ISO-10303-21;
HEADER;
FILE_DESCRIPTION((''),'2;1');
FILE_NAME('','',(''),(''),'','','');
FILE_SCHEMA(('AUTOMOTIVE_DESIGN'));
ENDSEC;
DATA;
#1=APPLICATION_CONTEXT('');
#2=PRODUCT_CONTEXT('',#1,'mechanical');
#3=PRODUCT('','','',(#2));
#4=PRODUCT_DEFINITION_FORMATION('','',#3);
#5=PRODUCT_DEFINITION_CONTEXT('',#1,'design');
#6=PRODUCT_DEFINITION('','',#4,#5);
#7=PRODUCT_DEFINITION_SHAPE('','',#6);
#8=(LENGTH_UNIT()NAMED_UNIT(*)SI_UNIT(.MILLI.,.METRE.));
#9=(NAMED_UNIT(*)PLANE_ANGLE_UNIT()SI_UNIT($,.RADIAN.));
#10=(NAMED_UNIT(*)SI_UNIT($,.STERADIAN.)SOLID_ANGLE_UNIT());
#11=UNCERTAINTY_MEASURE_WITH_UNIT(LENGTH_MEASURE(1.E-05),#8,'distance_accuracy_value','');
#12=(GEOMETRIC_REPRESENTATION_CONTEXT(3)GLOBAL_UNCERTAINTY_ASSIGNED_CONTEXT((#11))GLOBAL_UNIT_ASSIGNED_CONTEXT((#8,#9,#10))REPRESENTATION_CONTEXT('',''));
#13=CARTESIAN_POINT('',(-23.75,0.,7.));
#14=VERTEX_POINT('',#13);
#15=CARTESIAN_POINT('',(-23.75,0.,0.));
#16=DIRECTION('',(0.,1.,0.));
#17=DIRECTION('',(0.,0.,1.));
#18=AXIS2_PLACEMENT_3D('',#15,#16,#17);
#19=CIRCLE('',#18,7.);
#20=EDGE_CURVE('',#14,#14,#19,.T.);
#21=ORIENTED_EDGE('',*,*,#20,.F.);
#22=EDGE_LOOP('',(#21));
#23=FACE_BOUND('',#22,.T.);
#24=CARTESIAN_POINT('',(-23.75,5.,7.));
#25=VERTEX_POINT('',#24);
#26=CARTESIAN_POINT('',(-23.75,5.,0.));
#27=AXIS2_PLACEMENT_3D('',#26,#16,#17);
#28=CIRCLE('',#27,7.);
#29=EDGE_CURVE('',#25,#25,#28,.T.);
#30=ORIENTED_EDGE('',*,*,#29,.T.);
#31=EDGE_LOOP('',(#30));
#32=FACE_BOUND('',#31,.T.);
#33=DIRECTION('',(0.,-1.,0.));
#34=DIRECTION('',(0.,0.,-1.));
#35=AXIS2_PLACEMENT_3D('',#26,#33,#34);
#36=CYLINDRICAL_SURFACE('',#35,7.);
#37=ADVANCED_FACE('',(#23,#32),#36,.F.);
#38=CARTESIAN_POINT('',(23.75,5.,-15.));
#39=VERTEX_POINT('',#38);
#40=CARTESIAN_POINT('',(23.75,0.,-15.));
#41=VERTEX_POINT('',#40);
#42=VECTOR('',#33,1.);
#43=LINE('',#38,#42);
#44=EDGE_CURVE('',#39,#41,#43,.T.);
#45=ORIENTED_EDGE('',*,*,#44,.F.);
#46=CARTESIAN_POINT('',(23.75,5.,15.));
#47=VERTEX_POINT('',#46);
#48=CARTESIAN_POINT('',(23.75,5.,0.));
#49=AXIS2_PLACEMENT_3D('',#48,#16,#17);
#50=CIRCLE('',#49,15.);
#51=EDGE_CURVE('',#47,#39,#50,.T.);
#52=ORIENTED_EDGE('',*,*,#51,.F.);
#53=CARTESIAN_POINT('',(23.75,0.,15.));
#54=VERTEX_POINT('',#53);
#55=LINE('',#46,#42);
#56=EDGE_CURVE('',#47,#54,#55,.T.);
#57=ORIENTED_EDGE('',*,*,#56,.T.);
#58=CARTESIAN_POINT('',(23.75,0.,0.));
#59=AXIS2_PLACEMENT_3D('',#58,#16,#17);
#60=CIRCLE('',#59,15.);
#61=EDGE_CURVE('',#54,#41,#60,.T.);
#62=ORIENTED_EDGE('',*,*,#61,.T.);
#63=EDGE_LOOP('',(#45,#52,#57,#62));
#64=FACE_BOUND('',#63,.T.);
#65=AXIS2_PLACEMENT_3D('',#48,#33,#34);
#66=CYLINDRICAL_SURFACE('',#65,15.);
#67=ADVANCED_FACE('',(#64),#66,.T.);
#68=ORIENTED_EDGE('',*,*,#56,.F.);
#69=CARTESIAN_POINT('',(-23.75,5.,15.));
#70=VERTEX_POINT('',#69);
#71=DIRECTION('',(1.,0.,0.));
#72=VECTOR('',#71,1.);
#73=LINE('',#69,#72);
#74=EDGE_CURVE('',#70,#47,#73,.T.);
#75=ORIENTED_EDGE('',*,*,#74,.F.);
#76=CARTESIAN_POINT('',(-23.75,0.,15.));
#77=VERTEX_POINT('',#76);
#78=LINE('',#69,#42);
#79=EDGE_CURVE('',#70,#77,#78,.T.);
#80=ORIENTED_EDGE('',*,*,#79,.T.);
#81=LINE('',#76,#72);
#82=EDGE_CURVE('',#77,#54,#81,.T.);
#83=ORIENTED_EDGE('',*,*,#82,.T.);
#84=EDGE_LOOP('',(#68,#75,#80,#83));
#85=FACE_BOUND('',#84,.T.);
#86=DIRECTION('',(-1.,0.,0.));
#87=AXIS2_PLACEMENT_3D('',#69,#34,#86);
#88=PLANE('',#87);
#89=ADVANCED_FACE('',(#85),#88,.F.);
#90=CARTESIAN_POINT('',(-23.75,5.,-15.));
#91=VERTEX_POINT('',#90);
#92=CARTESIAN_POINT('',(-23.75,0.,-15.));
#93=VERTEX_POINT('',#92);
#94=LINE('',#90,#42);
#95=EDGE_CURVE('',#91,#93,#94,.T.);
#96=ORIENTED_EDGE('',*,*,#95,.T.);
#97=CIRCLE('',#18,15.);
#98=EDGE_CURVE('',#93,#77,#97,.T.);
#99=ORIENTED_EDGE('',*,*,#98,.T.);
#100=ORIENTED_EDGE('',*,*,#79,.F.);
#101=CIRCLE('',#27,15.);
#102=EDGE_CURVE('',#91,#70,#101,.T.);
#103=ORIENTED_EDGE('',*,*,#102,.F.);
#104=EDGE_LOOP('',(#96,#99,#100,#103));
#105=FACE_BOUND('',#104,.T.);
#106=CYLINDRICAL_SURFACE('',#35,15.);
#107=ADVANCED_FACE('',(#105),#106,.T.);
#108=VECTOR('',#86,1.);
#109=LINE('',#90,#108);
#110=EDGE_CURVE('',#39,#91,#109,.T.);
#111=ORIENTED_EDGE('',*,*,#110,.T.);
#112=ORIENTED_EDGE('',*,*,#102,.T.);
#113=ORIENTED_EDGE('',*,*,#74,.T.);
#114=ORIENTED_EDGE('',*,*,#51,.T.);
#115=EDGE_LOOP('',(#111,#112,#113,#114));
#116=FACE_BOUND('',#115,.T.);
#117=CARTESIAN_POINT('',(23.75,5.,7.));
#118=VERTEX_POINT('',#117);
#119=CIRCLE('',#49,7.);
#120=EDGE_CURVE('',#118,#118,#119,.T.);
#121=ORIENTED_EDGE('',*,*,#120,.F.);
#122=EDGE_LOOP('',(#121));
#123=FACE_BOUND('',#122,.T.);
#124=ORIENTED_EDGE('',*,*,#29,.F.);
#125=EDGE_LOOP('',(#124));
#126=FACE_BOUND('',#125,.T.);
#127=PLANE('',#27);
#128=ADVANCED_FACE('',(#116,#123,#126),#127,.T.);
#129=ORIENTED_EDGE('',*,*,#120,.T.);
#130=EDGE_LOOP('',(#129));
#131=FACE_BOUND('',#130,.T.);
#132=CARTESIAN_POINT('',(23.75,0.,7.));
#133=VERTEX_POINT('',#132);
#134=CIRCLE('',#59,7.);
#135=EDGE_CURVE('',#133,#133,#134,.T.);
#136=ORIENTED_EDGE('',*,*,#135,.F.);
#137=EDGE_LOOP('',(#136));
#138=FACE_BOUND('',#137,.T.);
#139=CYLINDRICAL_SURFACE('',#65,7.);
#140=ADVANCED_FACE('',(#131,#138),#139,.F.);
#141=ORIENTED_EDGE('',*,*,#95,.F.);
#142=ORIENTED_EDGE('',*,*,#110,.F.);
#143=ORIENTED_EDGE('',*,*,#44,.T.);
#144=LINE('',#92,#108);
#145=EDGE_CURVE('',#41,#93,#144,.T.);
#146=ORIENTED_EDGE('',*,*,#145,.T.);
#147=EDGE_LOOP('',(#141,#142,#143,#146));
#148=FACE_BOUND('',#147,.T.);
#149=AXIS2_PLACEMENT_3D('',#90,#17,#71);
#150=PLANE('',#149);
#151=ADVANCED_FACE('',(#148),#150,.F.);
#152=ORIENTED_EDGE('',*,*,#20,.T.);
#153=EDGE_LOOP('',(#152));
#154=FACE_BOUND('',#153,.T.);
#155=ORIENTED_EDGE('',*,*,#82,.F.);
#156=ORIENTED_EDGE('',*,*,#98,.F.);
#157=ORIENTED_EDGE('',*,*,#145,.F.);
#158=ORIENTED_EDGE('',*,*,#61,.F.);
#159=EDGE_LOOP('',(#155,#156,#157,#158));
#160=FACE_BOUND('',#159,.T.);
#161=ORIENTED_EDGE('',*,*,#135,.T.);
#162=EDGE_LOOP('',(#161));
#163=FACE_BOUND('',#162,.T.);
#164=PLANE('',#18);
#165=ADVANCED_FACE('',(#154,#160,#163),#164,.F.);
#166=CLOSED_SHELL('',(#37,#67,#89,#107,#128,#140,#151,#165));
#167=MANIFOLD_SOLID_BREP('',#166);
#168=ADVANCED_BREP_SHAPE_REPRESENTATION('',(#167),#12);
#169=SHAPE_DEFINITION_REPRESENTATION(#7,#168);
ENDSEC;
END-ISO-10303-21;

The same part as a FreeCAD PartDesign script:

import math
import FreeCAD as App
import Part
import Sketcher

doc = App.newDocument("Part")
params = doc.addObject("Spreadsheet::Sheet", "Params")
for row, (alias, value) in enumerate([
    ("sketch1_diameter", "14 mm"),
    ("sketch1_radius", "15 mm"),
    ("sketch1_width", "47.5 mm"),
    ("pad1_length", "5 mm"),
], start=1):
    params.set(f"A{row}", alias)
    params.set(f"B{row}", "=" + value)
    params.setAlias(f"B{row}", alias)

body = doc.addObject("PartDesign::Body", "Body")

# Sketch on XZ plane
sketch1 = body.newObject("Sketcher::SketchObject", "Sketch")
sketch1.AttachmentSupport = (doc.getObject("XZ_Plane"), [""])
sketch1.MapMode = "FlatFace"
sketch1.addGeometry([
    Part.LineSegment(App.Vector(24, -15, 0), App.Vector(-24, -15, 0)),  # 0
    Part.ArcOfCircle(Part.Circle(App.Vector(-24, 0, 0), App.Vector(0, 0, 1), 15), math.radians(90), math.radians(270)),  # 1
    Part.LineSegment(App.Vector(-24, 15, 0), App.Vector(24, 15, 0)),  # 2
    Part.ArcOfCircle(Part.Circle(App.Vector(24, 0, 0), App.Vector(0, 0, 1), 15), math.radians(-90), math.radians(90)),  # 3
    Part.Circle(App.Vector(24, 0, 0), App.Vector(0, 0, 1), 7),  # 4
    Part.Circle(App.Vector(-24, 0, 0), App.Vector(0, 0, 1), 7),  # 5
], False)
sketch1.addConstraint([
    Sketcher.Constraint("Tangent", 0, 2, 1, 2),
    Sketcher.Constraint("Tangent", 1, 1, 2, 1),
    Sketcher.Constraint("Tangent", 2, 2, 3, 2),
    Sketcher.Constraint("Tangent", 3, 1, 0, 1),
    Sketcher.Constraint("Horizontal", 0),
    Sketcher.Constraint("Horizontal", 2),
    Sketcher.Constraint("Coincident", 4, 3, 3, 3),
    Sketcher.Constraint("Coincident", 5, 3, 1, 3),
    Sketcher.Constraint("Equal", 4, 5),
    Sketcher.Constraint("Symmetric", 1, 3, 3, 3, -1, 1),
    Sketcher.Constraint("Diameter", 4, 14.0),
    Sketcher.Constraint("Radius", 1, 15.0),
    Sketcher.Constraint("DistanceX", 0, 2, 0, 1, 47.5),
])
sketch1.setExpression("Constraints[10]", "Params.sketch1_diameter")
sketch1.setExpression("Constraints[11]", "Params.sketch1_radius")
sketch1.setExpression("Constraints[12]", "Params.sketch1_width")
pad1 = body.newObject("PartDesign::Pad", "Pad")
pad1.Profile = sketch1
pad1.setExpression("Length", "Params.pad1_length")
pad1.Reversed = True

doc.recompute()
